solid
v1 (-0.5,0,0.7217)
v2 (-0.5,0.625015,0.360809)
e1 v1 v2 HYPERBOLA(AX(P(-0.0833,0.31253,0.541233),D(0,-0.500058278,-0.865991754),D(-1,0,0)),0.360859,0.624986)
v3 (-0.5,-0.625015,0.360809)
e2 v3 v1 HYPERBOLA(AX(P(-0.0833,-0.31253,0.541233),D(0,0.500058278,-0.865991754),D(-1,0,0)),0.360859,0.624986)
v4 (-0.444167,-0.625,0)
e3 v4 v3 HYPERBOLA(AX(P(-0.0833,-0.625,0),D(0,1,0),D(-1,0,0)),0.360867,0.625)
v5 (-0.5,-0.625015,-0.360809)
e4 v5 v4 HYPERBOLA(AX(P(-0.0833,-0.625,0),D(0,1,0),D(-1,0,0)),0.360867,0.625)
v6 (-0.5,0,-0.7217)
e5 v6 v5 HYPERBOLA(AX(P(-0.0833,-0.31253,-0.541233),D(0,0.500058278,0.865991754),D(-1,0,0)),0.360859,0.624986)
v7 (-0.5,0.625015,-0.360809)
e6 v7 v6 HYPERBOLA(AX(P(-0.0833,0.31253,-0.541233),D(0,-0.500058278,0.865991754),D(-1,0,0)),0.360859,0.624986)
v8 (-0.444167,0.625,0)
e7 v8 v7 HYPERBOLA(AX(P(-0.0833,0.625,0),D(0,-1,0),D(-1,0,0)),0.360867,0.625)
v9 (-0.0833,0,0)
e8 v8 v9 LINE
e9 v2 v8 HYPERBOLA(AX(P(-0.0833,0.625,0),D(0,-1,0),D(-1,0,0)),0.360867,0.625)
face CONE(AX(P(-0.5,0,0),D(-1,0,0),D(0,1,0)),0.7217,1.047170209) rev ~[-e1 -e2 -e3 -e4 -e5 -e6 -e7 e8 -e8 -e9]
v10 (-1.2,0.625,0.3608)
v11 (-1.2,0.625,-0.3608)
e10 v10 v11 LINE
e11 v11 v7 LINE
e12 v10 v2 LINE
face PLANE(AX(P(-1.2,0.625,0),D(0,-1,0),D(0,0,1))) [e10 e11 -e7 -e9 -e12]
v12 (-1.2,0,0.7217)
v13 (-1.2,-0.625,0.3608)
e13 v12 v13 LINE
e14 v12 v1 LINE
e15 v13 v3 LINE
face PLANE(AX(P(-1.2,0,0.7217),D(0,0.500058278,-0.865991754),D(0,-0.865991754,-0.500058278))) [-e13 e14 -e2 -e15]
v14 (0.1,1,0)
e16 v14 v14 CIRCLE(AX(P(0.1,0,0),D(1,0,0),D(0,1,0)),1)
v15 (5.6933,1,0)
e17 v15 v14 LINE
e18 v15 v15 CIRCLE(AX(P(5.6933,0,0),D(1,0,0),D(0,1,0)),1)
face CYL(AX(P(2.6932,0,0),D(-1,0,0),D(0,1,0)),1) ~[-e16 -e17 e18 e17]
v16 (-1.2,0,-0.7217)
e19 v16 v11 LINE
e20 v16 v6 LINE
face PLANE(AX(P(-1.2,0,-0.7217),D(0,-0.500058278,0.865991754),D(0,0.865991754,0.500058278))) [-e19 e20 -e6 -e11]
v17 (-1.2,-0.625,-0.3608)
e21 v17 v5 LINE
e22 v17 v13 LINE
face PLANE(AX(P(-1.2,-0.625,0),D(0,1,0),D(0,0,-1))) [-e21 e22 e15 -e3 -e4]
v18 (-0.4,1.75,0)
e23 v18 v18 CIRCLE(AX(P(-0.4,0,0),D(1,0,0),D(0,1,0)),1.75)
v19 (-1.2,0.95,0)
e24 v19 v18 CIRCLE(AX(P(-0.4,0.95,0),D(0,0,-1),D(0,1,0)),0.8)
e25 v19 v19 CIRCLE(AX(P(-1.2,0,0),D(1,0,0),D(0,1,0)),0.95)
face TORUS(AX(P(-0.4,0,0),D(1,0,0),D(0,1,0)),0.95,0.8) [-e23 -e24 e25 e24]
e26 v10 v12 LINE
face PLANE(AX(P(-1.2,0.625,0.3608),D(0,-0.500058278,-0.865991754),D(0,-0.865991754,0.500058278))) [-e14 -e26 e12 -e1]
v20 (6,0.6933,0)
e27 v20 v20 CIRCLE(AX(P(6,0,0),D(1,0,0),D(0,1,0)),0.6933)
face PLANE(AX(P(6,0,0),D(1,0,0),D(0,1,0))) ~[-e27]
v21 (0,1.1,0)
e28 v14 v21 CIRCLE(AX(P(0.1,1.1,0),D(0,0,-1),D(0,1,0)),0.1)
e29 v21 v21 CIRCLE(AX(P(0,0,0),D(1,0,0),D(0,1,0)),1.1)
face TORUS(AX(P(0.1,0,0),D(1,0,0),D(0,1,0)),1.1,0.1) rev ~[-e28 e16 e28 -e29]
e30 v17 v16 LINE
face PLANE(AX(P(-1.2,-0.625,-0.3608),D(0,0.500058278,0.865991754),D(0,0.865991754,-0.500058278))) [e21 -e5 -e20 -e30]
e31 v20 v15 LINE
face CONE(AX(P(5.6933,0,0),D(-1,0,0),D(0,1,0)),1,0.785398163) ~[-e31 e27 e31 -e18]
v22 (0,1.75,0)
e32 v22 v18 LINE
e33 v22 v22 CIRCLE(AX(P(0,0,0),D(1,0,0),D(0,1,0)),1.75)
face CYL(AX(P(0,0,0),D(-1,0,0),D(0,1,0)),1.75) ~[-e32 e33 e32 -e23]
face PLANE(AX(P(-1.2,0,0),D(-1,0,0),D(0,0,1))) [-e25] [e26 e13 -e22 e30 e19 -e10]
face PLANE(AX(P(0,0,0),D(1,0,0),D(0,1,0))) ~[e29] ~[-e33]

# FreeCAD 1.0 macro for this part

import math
import FreeCAD as App
import Part
import Sketcher

V = App.Vector
Q = App.Units.Quantity


def edges_at(feature, points):
    """Names of the edges that pass closest to the given points."""
    edges = feature.Shape.Edges
    near = lambda p: min(range(len(edges)), key=lambda i: edges[i].distToShape(Part.Vertex(*p))[0])
    return sorted({f"Edge{near(p) + 1}" for p in points})

doc = App.newDocument("Part")
body = doc.addObject("PartDesign::Body", "Body")

sketch1 = body.newObject("Sketcher::SketchObject", "Sketch")
sketch1.AttachmentSupport = (doc.getObject("XY_Plane"), [""])
sketch1.MapMode = "FlatFace"
sketch1.addGeometry([
    Part.LineSegment(V(-0.5, 0.7217, 0), V(-0.0833, 0, 0)),
    Part.LineSegment(V(-0.0833, 0, 0), V(6, 0, 0)),
    Part.LineSegment(V(6, 0, 0), V(6, 1, 0)),
    Part.LineSegment(V(6, 1, 0), V(0, 1, 0)),
    Part.LineSegment(V(0, 1, 0), V(0, 1.75, 0)),
    Part.LineSegment(V(0, 1.75, 0), V(-1.2, 1.75, 0)),
    Part.LineSegment(V(-1.2, 1.75, 0), V(-1.2, 0.7217, 0)),
    Part.LineSegment(V(-1.2, 0.7217, 0), V(-0.5, 0.7217, 0)),
], False)
sketch1.addConstraint([
    Sketcher.Constraint("Coincident", 0, 2, 1, 1),
    Sketcher.Constraint("Coincident", 1, 2, 2, 1),
    Sketcher.Constraint("Coincident", 2, 2, 3, 1),
    Sketcher.Constraint("Coincident", 3, 2, 4, 1),
    Sketcher.Constraint("Coincident", 4, 2, 5, 1),
    Sketcher.Constraint("Coincident", 5, 2, 6, 1),
    Sketcher.Constraint("Coincident", 6, 2, 7, 1),
    Sketcher.Constraint("Coincident", 7, 2, 0, 1),
    Sketcher.Constraint("Horizontal", 1),
    Sketcher.Constraint("Vertical", 2),
    Sketcher.Constraint("Horizontal", 3),
    Sketcher.Constraint("Vertical", 4),
    Sketcher.Constraint("Horizontal", 5),
    Sketcher.Constraint("Vertical", 6),
    Sketcher.Constraint("Horizontal", 7),
    Sketcher.Constraint("PointOnObject", 0, 2, -1),
    Sketcher.Constraint("PointOnObject", 3, 2, -2),
    Sketcher.Constraint("DistanceX", 3, 2, 3, 1, Q("6 mm")),
    Sketcher.Constraint("DistanceX", 5, 2, 5, 1, Q("1.2 mm")),
    Sketcher.Constraint("DistanceX", 7, 1, 7, 2, Q("0.7 mm")),
    Sketcher.Constraint("DistanceY", 2, 1, 2, 2, Q("1 mm")),
    Sketcher.Constraint("DistanceY", 4, 1, 4, 2, Q("0.75 mm")),
    Sketcher.Constraint("DistanceX", 1, 1, 1, 2, Q("6.0833 mm")),
    Sketcher.Constraint("DistanceY", 6, 2, 6, 1, Q("1.0283 mm")),
])
revolution = body.newObject("PartDesign::Revolution", "Revolution")
revolution.Profile = sketch1
revolution.ReferenceAxis = (sketch1, ["H_Axis"])
revolution.Angle = 360

sketch2 = body.newObject("Sketcher::SketchObject", "Sketch001")
sketch2.AttachmentSupport = (doc.getObject("YZ_Plane"), [""])
sketch2.MapMode = "FlatFace"
sketch2.AttachmentOffset = App.Placement(V(0, 0, -1.2), App.Rotation())
sketch2.addGeometry([
    Part.LineSegment(V(0.625, 0.3608, 0), V(0, 0.7217, 0)),
    Part.ArcOfCircle(Part.Circle(V(0, 0, 0), V(0, 0, 1), 0.7217), math.radians(29.99698), math.radians(90)),
    Part.ArcOfCircle(Part.Circle(V(0, 0, 0), V(0, 0, 1), 0.7217), math.radians(90), math.radians(150.00302)),
    Part.LineSegment(V(0, 0.7217, 0), V(-0.625, 0.3608, 0)),
    Part.ArcOfCircle(Part.Circle(V(0, 0, 0), V(0, 0, 1), 0.7217), math.radians(-29.99698), math.radians(29.99698)),
    Part.LineSegment(V(0.625, 0.3608, 0), V(0.625, -0.3608, 0)),
    Part.LineSegment(V(-0.625, 0.3608, 0), V(-0.625, -0.3608, 0)),
    Part.ArcOfCircle(Part.Circle(V(0, 0, 0), V(0, 0, 1), 0.7217), math.radians(150.00302), math.radians(209.99698)),
    Part.LineSegment(V(-0.625, -0.3608, 0), V(0, -0.7217, 0)),
    Part.ArcOfCircle(Part.Circle(V(0, 0, 0), V(0, 0, 1), 0.7217), math.radians(-150.00302), math.radians(-90)),
    Part.ArcOfCircle(Part.Circle(V(0, 0, 0), V(0, 0, 1), 0.7217), math.radians(-90), math.radians(-29.99698)),
    Part.LineSegment(V(0, -0.7217, 0), V(0.625, -0.3608, 0)),
], False)
sketch2.addConstraint([
    Sketcher.Constraint("Coincident", 0, 1, 1, 1),
    Sketcher.Constraint("Coincident", 1, 2, 0, 2),
    Sketcher.Constraint("Coincident", 2, 1, 3, 1),
    Sketcher.Constraint("Coincident", 3, 2, 2, 2),
    Sketcher.Constraint("Coincident", 4, 1, 5, 2),
    Sketcher.Constraint("Coincident", 5, 1, 4, 2),
    Sketcher.Constraint("Coincident", 6, 1, 7, 1),
    Sketcher.Constraint("Coincident", 7, 2, 6, 2),
    Sketcher.Constraint("Coincident", 8, 1, 9, 1),
    Sketcher.Constraint("Coincident", 9, 2, 8, 2),
    Sketcher.Constraint("Coincident", 10, 1, 11, 1),
    Sketcher.Constraint("Coincident", 11, 2, 10, 2),
    Sketcher.Constraint("Vertical", 5),
    Sketcher.Constraint("Vertical", 6),
    Sketcher.Constraint("Coincident", 1, 3, -1, 1),
    Sketcher.Constraint("Coincident", 2, 3, -1, 1),
    Sketcher.Constraint("Coincident", 4, 3, -1, 1),
    Sketcher.Constraint("Coincident", 7, 3, -1, 1),
    Sketcher.Constraint("Coincident", 9, 3, -1, 1),
    Sketcher.Constraint("Coincident", 10, 3, -1, 1),
    Sketcher.Constraint("Coincident", 2, 1, 1, 2),
    Sketcher.Constraint("Coincident", 5, 1, 0, 1),
    Sketcher.Constraint("Coincident", 6, 1, 3, 2),
    Sketcher.Constraint("Coincident", 8, 1, 7, 2),
    Sketcher.Constraint("Coincident", 10, 1, 9, 2),
    Sketcher.Constraint("PointOnObject", 1, 2, -2),
    Sketcher.Constraint("PointOnObject", 9, 2, -2),
    Sketcher.Constraint("Parallel", 0, 8),
    Sketcher.Constraint("Parallel", 3, 11),
    Sketcher.Constraint("Radius", 1, Q("0.7217 mm")),
    Sketcher.Constraint("DistanceY", 5, 2, 5, 1, Q("0.7216 mm")),
])
pad1 = body.newObject("PartDesign::Pad", "Pad")
pad1.Profile = sketch2
pad1.Type = "UpToFirst"
doc.recompute()

fillet = body.newObject("PartDesign::Fillet", "Fillet")
fillet.Base = (pad1, edges_at(pad1, [(-1.2, -1.75, 0)]))
fillet.Radius = 0.8
doc.recompute()

chamfer = body.newObject("PartDesign::Chamfer", "Chamfer")
chamfer.Base = (fillet, edges_at(fillet, [(6, -1, 0)]))
chamfer.ChamferType = "Two distances"
chamfer.Size = 0.3067
chamfer.Size2 = 0.3067
doc.recompute()

fillet2 = body.newObject("PartDesign::Fillet", "Fillet001")
fillet2.Base = (chamfer, edges_at(chamfer, [(0, -1, 0)]))
fillet2.Radius = 0.1

doc.recompute()
